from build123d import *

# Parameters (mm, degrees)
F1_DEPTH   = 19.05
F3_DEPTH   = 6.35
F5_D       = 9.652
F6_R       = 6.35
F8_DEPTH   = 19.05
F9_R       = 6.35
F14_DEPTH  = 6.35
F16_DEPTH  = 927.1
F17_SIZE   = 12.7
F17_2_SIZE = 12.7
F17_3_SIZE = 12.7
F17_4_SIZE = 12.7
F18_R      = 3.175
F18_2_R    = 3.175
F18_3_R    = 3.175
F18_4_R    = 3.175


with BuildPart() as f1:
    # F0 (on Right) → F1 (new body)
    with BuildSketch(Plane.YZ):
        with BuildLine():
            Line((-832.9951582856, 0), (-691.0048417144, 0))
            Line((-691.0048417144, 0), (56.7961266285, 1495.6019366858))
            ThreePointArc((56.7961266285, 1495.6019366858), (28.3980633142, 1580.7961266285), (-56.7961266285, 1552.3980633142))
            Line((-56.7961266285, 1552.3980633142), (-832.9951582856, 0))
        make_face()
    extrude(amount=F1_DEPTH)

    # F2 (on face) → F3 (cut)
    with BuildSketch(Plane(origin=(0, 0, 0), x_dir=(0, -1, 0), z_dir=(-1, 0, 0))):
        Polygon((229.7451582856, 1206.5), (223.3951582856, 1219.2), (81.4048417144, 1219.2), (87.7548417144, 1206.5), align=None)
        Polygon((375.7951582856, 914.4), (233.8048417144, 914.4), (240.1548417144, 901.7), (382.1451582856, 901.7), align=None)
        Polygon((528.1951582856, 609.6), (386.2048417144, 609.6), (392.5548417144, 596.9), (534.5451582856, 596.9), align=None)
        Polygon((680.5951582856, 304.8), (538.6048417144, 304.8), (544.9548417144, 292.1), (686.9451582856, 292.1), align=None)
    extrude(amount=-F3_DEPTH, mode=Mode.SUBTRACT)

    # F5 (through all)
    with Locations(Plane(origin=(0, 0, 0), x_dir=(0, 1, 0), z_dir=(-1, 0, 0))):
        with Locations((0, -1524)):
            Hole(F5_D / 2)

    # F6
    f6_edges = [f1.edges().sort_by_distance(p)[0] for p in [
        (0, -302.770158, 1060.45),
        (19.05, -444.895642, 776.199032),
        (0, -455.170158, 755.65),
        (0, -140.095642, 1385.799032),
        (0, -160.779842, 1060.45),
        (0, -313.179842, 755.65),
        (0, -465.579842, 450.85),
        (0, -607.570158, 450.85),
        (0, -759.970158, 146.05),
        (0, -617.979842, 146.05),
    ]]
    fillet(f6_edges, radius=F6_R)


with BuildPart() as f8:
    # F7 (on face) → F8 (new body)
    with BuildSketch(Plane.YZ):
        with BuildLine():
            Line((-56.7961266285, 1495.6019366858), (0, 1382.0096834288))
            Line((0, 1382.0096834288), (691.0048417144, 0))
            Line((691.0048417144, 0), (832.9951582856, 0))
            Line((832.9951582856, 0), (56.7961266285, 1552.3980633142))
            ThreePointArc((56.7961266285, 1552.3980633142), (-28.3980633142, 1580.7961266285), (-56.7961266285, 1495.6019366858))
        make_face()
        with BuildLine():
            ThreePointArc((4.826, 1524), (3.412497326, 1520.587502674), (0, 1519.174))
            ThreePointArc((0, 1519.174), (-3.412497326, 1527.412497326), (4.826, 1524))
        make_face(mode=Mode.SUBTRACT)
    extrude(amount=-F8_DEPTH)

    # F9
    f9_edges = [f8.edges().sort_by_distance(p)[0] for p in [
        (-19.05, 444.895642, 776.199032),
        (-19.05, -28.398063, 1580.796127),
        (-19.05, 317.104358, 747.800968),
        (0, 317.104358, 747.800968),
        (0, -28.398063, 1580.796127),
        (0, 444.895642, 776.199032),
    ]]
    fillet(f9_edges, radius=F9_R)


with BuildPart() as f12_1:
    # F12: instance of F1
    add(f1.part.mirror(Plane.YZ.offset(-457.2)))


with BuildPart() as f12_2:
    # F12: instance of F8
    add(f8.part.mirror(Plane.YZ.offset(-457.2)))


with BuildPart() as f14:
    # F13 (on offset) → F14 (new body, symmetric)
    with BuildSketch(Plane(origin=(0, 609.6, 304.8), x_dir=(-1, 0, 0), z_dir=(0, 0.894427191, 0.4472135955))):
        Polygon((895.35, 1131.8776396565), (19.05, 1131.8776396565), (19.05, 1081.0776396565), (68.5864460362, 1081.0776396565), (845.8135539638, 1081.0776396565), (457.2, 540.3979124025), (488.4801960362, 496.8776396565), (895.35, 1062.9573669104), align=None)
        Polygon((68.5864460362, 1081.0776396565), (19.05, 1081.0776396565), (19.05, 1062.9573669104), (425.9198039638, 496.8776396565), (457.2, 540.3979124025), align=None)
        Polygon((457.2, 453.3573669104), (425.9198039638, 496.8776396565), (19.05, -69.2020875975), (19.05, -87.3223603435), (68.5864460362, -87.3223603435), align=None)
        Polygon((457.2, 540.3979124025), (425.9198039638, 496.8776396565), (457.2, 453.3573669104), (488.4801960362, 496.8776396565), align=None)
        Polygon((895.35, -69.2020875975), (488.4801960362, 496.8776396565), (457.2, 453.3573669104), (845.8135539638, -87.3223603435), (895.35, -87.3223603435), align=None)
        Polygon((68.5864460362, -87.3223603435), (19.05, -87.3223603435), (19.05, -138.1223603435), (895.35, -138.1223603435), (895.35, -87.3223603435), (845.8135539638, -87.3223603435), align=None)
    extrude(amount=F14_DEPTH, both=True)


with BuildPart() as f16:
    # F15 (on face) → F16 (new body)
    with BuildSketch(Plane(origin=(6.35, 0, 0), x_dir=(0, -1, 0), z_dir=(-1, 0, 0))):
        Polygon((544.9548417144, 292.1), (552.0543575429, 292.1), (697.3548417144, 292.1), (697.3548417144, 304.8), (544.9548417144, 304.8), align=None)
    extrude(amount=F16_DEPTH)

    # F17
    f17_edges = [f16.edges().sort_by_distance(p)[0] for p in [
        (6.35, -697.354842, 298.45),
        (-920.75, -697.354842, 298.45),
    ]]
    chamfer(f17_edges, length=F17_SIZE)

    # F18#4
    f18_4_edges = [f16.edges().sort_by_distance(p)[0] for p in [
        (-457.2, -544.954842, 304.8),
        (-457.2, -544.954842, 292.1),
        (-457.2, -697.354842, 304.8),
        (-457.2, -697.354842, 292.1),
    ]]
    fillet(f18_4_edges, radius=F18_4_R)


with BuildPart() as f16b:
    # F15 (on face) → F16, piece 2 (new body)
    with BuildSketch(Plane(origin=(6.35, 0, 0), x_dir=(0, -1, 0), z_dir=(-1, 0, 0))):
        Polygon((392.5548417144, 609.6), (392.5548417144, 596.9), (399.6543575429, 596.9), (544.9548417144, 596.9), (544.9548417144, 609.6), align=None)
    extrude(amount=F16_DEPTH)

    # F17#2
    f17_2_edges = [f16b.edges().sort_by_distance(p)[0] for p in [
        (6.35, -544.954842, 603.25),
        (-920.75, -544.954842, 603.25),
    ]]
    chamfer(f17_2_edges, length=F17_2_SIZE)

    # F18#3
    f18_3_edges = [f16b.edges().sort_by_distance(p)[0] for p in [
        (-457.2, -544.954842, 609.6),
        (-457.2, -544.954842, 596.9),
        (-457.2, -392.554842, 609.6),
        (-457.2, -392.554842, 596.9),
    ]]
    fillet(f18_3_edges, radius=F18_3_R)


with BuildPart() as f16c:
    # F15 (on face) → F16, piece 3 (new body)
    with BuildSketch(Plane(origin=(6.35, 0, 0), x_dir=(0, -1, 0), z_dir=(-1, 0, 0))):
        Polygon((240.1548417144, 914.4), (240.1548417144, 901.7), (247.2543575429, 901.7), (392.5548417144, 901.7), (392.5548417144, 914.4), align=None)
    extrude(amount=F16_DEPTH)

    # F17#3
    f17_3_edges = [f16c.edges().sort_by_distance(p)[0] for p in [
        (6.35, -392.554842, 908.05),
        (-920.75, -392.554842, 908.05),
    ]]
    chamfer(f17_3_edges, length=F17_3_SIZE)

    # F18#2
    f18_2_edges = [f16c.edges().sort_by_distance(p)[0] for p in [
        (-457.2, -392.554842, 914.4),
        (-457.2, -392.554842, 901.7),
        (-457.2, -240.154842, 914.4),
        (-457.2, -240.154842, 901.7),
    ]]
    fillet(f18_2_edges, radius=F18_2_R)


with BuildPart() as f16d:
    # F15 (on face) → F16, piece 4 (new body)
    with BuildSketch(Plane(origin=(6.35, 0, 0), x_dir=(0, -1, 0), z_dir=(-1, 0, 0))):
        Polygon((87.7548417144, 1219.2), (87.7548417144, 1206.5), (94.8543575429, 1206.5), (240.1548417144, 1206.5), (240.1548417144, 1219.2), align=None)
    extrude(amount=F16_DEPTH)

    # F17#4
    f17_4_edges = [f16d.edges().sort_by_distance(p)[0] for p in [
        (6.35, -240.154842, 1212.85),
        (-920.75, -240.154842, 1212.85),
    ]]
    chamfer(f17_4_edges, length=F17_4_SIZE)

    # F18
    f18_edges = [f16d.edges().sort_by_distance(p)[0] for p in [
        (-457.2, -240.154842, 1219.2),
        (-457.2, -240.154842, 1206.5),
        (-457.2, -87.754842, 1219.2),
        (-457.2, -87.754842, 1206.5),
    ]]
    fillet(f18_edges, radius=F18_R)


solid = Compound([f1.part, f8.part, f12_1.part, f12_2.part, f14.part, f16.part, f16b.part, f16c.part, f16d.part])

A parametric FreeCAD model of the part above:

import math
import FreeCAD as App
import Part
import Sketcher
Q = App.Units.Quantity


def edges_at(feature, points):
    """Names of the edges that pass closest to the given points."""
    edges = feature.Shape.Edges
    near = lambda p: min(range(len(edges)), key=lambda i: edges[i].distToShape(Part.Vertex(*p))[0])
    return sorted({f"Edge{near(p) + 1}" for p in points})


def add_polygon(sketch, points):
    """Adds a closed chain of lines whose ends are joined by coincident constraints."""
    first, n = sketch.GeometryCount, len(points)
    for a, b in zip(points, points[1:] + points[:1]):
        sketch.addGeometry(Part.LineSegment(App.Vector(*a, 0), App.Vector(*b, 0)), False)
    for i in range(n):
        sketch.addConstraint(Sketcher.Constraint("Coincident", first + i, 2, first + (i + 1) % n, 1))

doc = App.newDocument("Part")
params = doc.addObject("Spreadsheet::Sheet", "Params")
for row, (alias, value) in enumerate([
    ("sketch1_radius", "2.5 in"),
    ("pad1_length", "0.75 in"),
    ("pocket1_length", "0.25 in"),
    ("sketch3_diameter", "0.38 in"),
    ("hole_diameter", "0.38 in"),
    ("fillet_radius", "0.25 in"),
    ("sketch4_radius", "2.5 in"),
    ("sketch4_radius2", "0.19 in"),
    ("pad2_length", "0.75 in"),
    ("fillet2_radius", "0.25 in"),
    ("sketch5_width", "34.5 in"),
    ("pad3_length", "0.5 in"),
    ("sketch6_width", "6 in"),
    ("sketch6_height", "0.5 in"),
    ("pad4_length", "36.5 in"),
    ("chamfer_size", "0.5 in"),
    ("fillet3_radius", "0.125 in"),
    ("sketch7_width", "6 in"),
    ("sketch7_height", "0.5 in"),
    ("pad5_length", "36.5 in"),
    ("chamfer2_size", "0.5 in"),
    ("fillet4_radius", "0.125 in"),
    ("sketch8_width", "6 in"),
    ("sketch8_height", "0.5 in"),
    ("pad6_length", "36.5 in"),
    ("chamfer3_size", "0.5 in"),
    ("fillet5_radius", "0.125 in"),
    ("sketch9_width", "6 in"),
    ("sketch9_height", "0.5 in"),
    ("pad7_length", "36.5 in"),
    ("chamfer4_size", "0.5 in"),
    ("fillet6_radius", "0.125 in"),
], start=1):
    params.set(f"A{row}", alias)
    params.set(f"B{row}", "=" + value)
    params.setAlias(f"B{row}", alias)

body = doc.addObject("PartDesign::Body", "Body")

# Sketch on YZ plane
sketch1 = body.newObject("Sketcher::SketchObject", "Sketch")
sketch1.AttachmentSupport = (doc.getObject("YZ_Plane"), [""])
sketch1.MapMode = "FlatFace"
sketch1.addGeometry([
    Part.LineSegment(App.Vector(-833, 0, 0), App.Vector(-691, 0, 0)),
    Part.LineSegment(App.Vector(-691, 0, 0), App.Vector(57, 1496, 0)),
    Part.ArcOfCircle(Part.Circle(App.Vector(0, 1524, 0), App.Vector(0, 0, 1), 64), math.radians(-27), math.radians(153)),
    Part.LineSegment(App.Vector(-57, 1552, 0), App.Vector(-833, 0, 0)),
], False)
sketch1.addConstraint([
    Sketcher.Constraint("Coincident", 0, 2, 1, 1),
    Sketcher.Constraint("Tangent", 1, 2, 2, 1),
    Sketcher.Constraint("Tangent", 2, 2, 3, 1),
    Sketcher.Constraint("Coincident", 3, 2, 0, 1),
    Sketcher.Constraint("Horizontal", 0),
    Sketcher.Constraint("PointOnObject", 2, 3, -2),
    Sketcher.Constraint("PointOnObject", 0, 2, -1),
    Sketcher.Constraint("Parallel", 1, 3),
    Sketcher.Constraint("Radius", 2, Q("2.5 in")),
    Sketcher.Constraint("DistanceY", -1, 1, 2, 3, Q("60 in")),
    Sketcher.Constraint("Distance", 1, Q("1672.133799 mm")),
])
sketch1.setExpression("Constraints[8]", "Params.sketch1_radius")
pad1 = body.newObject("PartDesign::Pad", "Pad")
pad1.Profile = sketch1
pad1.setExpression("Length", "Params.pad1_length")

# Sketch on YZ plane
sketch2 = body.newObject("Sketcher::SketchObject", "Sketch001")
sketch2.AttachmentSupport = (doc.getObject("YZ_Plane"), [""])
sketch2.MapMode = "FlatFace"
add_polygon(sketch2, [(-230, 1206), (-223, 1219), (-81, 1219), (-88, 1206)])  # lines 0-3
add_polygon(sketch2, [(-376, 914), (-234, 914), (-240, 902), (-382, 902)])  # lines 4-7
add_polygon(sketch2, [(-528, 610), (-386, 610), (-393, 597), (-535, 597)])  # lines 8-11
add_polygon(sketch2, [(-681, 305), (-539, 305), (-545, 292), (-687, 292)])  # lines 12-15
sketch2.addConstraint([
    Sketcher.Constraint("Horizontal", 1),
    Sketcher.Constraint("Horizontal", 3),
    Sketcher.Constraint("Horizontal", 4),
    Sketcher.Constraint("Horizontal", 6),
    Sketcher.Constraint("Horizontal", 8),
    Sketcher.Constraint("Horizontal", 10),
    Sketcher.Constraint("Horizontal", 12),
    Sketcher.Constraint("Horizontal", 14),
    Sketcher.Constraint("Parallel", 0, 2),
    Sketcher.Constraint("Parallel", 2, 5),
    Sketcher.Constraint("Parallel", 5, 7),
    Sketcher.Constraint("Parallel", 7, 9),
    Sketcher.Constraint("Parallel", 9, 11),
    Sketcher.Constraint("Parallel", 11, 13),
    Sketcher.Constraint("Parallel", 13, 15),
    Sketcher.Constraint("Equal", 3, 4),
    Sketcher.Constraint("Equal", 6, 8),
    Sketcher.Constraint("Equal", 10, 12),
    Sketcher.Constraint("Equal", 2, 5),
    Sketcher.Constraint("Equal", 7, 9),
    Sketcher.Constraint("Equal", 11, 13),
    Sketcher.Constraint("DistanceY", -1, 1, 0, 2, Q("48 in")),
    Sketcher.Constraint("DistanceY", -1, 1, 4, 2, Q("36 in")),
    Sketcher.Constraint("DistanceY", -1, 1, 8, 2, Q("24 in")),
    Sketcher.Constraint("DistanceY", -1, 1, 12, 2, Q("12 in")),
    Sketcher.Constraint("DistanceX", 4, 2, 1, 2, Q("6 in")),
    Sketcher.Constraint("DistanceX", 8, 2, 4, 2, Q("6 in")),
    Sketcher.Constraint("DistanceX", 12, 2, 8, 2, Q("6 in")),
    Sketcher.Constraint("DistanceY", -1, 1, 2, 2, Q("47.5 in")),
    Sketcher.Constraint("DistanceX", 2, 2, 1, 2, Q("0.25 in")),
    Sketcher.Constraint("DistanceX", 1, 1, 1, 2, Q("141.990317 mm")),
    Sketcher.Constraint("DistanceX", 0, 2, -1, 1, Q("223.395158 mm")),
])
pocket1 = body.newObject("PartDesign::Pocket", "Pocket")
pocket1.Profile = sketch2
pocket1.setExpression("Length", "Params.pocket1_length")
pocket1.Reversed = True

# Sketch on YZ plane
sketch3 = body.newObject("Sketcher::SketchObject", "Sketch002")
sketch3.AttachmentSupport = (doc.getObject("YZ_Plane"), [""])
sketch3.MapMode = "FlatFace"
sketch3.addGeometry(Part.Circle(App.Vector(0, 1524, 0), App.Vector(0, 0, 1), 4.8), False)
sketch3.addConstraint([
    Sketcher.Constraint("PointOnObject", 0, 3, -2),
    Sketcher.Constraint("Diameter", 0, Q("0.38 in")),
    Sketcher.Constraint("DistanceY", -1, 1, 0, 3, Q("60 in")),
])
sketch3.setExpression("Constraints[1]", "Params.sketch3_diameter")
doc.recompute()
hole = body.newObject("PartDesign::Hole", "Hole")
hole.Profile = sketch3
hole.ThreadType = "None"
hole.setExpression("Diameter", "Params.hole_diameter")
hole.DepthType = "ThroughAll"
hole.Reversed = True
doc.recompute()

fillet = body.newObject("PartDesign::Fillet", "Fillet")
fillet.Base = (hole, edges_at(hole, [
    (0, -302.77, 1060.45),
    (19.05, -444.896, 776.199),
    (0, -455.17, 755.65),
    (0, -140.096, 1385.799),
    (0, -160.78, 1060.45),
    (0, -313.18, 755.65),
    (0, -465.58, 450.85),
    (0, -607.57, 450.85),
    (0, -759.97, 146.05),
    (0, -617.98, 146.05),
]))
fillet.setExpression("Radius", "Params.fillet_radius")
body2 = doc.addObject("PartDesign::Body", "Body001")

# Sketch on YZ plane
sketch4 = body2.newObject("Sketcher::SketchObject", "Sketch003")
sketch4.AttachmentSupport = (doc.getObject("YZ_Plane001"), [""])
sketch4.MapMode = "FlatFace"
sketch4.addGeometry([
    Part.LineSegment(App.Vector(-56.8, 1495.6, 0), App.Vector(691, 0, 0)),  # 0
    Part.LineSegment(App.Vector(691, 0, 0), App.Vector(833, 0, 0)),  # 1
    Part.LineSegment(App.Vector(833, 0, 0), App.Vector(56.8, 1552.4, 0)),  # 2
    Part.ArcOfCircle(Part.Circle(App.Vector(0, 1524, 0), App.Vector(0, 0, 1), 63.5), math.radians(27), math.radians(207)),  # 3
    Part.ArcOfCircle(Part.Circle(App.Vector(0, 1524, 0), App.Vector(0, 0, 1), 4.8), math.radians(0), math.radians(270)),  # 4
    Part.ArcOfCircle(Part.Circle(App.Vector(0, 1524, 0), App.Vector(0, 0, 1), 4.8), math.radians(-90), math.radians(0)),  # 5
], False)
sketch4.addConstraint([
    Sketcher.Constraint("Coincident", 0, 2, 1, 1),
    Sketcher.Constraint("Coincident", 1, 2, 2, 1),
    Sketcher.Constraint("Tangent", 2, 2, 3, 1),
    Sketcher.Constraint("Tangent", 3, 2, 0, 1),
    Sketcher.Constraint("Tangent", 4, 1, 5, 2),
    Sketcher.Constraint("Coincident", 5, 1, 4, 2),
    Sketcher.Constraint("Horizontal", 1),
    Sketcher.Constraint("Coincident", 4, 3, 3, 3),
    Sketcher.Constraint("PointOnObject", 3, 3, -2),
    Sketcher.Constraint("PointOnObject", 0, 2, -1),
    Sketcher.Constraint("PointOnObject", 5, 1, -2),
    Sketcher.Constraint("Parallel", 0, 2),
    Sketcher.Constraint("Horizontal", 5, 3, 4, 1),
    Sketcher.Constraint("Radius", 3, Q("2.5 in")),
    Sketcher.Constraint("Radius", 4, Q("0.19 in")),
    Sketcher.Constraint("DistanceY", -1, 1, 3, 3, Q("60 in")),
    Sketcher.Constraint("Distance", 0, Q("1672.133799 mm")),
])
sketch4.setExpression("Constraints[13]", "Params.sketch4_radius")
sketch4.setExpression("Constraints[14]", "Params.sketch4_radius2")
pad2 = body2.newObject("PartDesign::Pad", "Pad001")
pad2.Profile = sketch4
pad2.setExpression("Length", "Params.pad2_length")
pad2.Reversed = True
doc.recompute()

fillet2 = body2.newObject("PartDesign::Fillet", "Fillet001")
fillet2.Base = (pad2, edges_at(pad2, [
    (-19.05, 444.896, 776.199),
    (-19.05, -28.398, 1580.796),
    (-19.05, 317.104, 747.801),
    (0, 317.104, 747.801),
    (0, -28.398, 1580.796),
    (0, 444.896, 776.199),
]))
fillet2.setExpression("Radius", "Params.fillet2_radius")
body3 = doc.addObject("PartDesign::Body", "Body002")
doc.recompute()

mirroring = doc.addObject("Part::Mirroring", "Mirroring")
mirroring.Source = body
mirroring.Base = App.Vector(-457.2, 0, 0)
mirroring.Normal = App.Vector(1, 0, 0)
body3.BaseFeature = mirroring
doc.recompute()
body4 = doc.addObject("PartDesign::Body", "Body003")
doc.recompute()

mirroring2 = doc.addObject("Part::Mirroring", "Mirroring001")
mirroring2.Source = body2
mirroring2.Base = App.Vector(-457.2, 0, 0)
mirroring2.Normal = App.Vector(1, 0, 0)
body4.BaseFeature = mirroring2
doc.recompute()
body5 = doc.addObject("PartDesign::Body", "Body004")

# Sketch on an angled plane
sketch5 = body5.newObject("Sketcher::SketchObject", "Sketch004")
sketch5.Placement = App.Placement(App.Vector(0, 609.6, 304.8), App.Rotation(App.Vector(-1, 0, 0), App.Vector(0, -0.447213595, 0.894427191), App.Vector(0, 0.894427191, 0.447213595), "ZXY"))
add_polygon(sketch5, [(19, 1063), (426, 497), (19, -69), (19, -138), (895, -138), (895, -69), (488, 497), (895, 1063), (895, 1132), (19, 1132)])  # lines 0-9
add_polygon(sketch5, [(69, -87), (457, 453), (846, -87)])  # lines 10-12
add_polygon(sketch5, [(846, 1081), (457, 540), (69, 1081)])  # lines 13-15
sketch5.addConstraint([
    Sketcher.Constraint("Vertical", 2),
    Sketcher.Constraint("Horizontal", 3),
    Sketcher.Constraint("Vertical", 4),
    Sketcher.Constraint("Vertical", 7),
    Sketcher.Constraint("Horizontal", 8),
    Sketcher.Constraint("Vertical", 9),
    Sketcher.Constraint("Horizontal", 12),
    Sketcher.Constraint("Horizontal", 15),
    Sketcher.Constraint("Parallel", 0, 5),
    Sketcher.Constraint("Parallel", 1, 6),
    Sketcher.Constraint("Parallel", 6, 10),
    Sketcher.Constraint("Parallel", 5, 11),
    Sketcher.Constraint("Parallel", 10, 13),
    Sketcher.Constraint("Parallel", 11, 14),
    Sketcher.Constraint("Horizontal", 1, 2, 4, 2),
    Sketcher.Constraint("Horizontal", 0, 2, 5, 2),
    Sketcher.Constraint("Horizontal", 6, 2, 9, 2),
    Sketcher.Constraint("Vertical", 4, 2, 6, 2),
    Sketcher.Constraint("Vertical", 2, 2, 8, 2),
    Sketcher.Constraint("Vertical", 10, 2, 13, 2),
    Sketcher.Constraint("Vertical", 12, 2, 14, 2),
    Sketcher.Constraint("Equal", 4, 7),
    Sketcher.Constraint("DistanceX", 3, 1, 3, 2, Q("34.5 in")),
    Sketcher.Constraint("DistanceX", -1, 1, 10, 2, Q("18 in")),
    Sketcher.Constraint("DistanceY", 2, 2, 0, 2, Q("25 in")),
    Sketcher.Constraint("DistanceY", 3, 2, 11, 2, Q("2 in")),
    Sketcher.Constraint("DistanceY", 14, 2, 8, 2, Q("2 in")),
    Sketcher.Constraint("DistanceX", -1, 1, 1, 2, Q("0.75 in")),
    Sketcher.Constraint("DistanceX", 0, 2, 11, 2, Q("16.53125 in")),
    Sketcher.Constraint("Distance", 10, Q("665.849128 mm")),
    Sketcher.Constraint("DistanceX", 12, 2, 12, 1, Q("777.227108 mm")),
    Sketcher.Constraint("DistanceY", -1, 1, 0, 2, Q("496.877639 mm")),
])
sketch5.setExpression("Constraints[38]", "Params.sketch5_width")
pad3 = body5.newObject("PartDesign::Pad", "Pad002")
pad3.Profile = sketch5
pad3.setExpression("Length", "Params.pad3_length")
pad3.Midplane = True
body6 = doc.addObject("PartDesign::Body", "Body005")

# Sketch on YZ plane
sketch6 = body6.newObject("Sketcher::SketchObject", "Sketch005")
sketch6.AttachmentSupport = (doc.getObject("YZ_Plane005"), [""])
sketch6.MapMode = "FlatFace"
sketch6.AttachmentOffset = App.Placement(App.Vector(0, 0, 0.25 * 25.4), App.Rotation())
add_polygon(sketch6, [(-545, 292), (-697, 292), (-697, 305), (-545, 305)])  # lines 0-3
sketch6.addConstraint([
    Sketcher.Constraint("Horizontal", 0),
    Sketcher.Constraint("Vertical", 1),
    Sketcher.Constraint("Horizontal", 2),
    Sketcher.Constraint("Vertical", 3),
    Sketcher.Constraint("DistanceX", 0, 2, 0, 1, Q("6 in")),
    Sketcher.Constraint("DistanceY", 1, 1, 1, 2, Q("0.5 in")),
    Sketcher.Constraint("DistanceY", -1, 1, 1, 2, Q("12 in")),
    Sketcher.Constraint("DistanceX", 0, 2, -1, 1, Q("697.354842 mm")),
])
sketch6.setExpression("Constraints[8]", "Params.sketch6_width")
sketch6.setExpression("Constraints[9]", "Params.sketch6_height")
pad4 = body6.newObject("PartDesign::Pad", "Pad003")
pad4.Profile = sketch6
pad4.setExpression("Length", "Params.pad4_length")
pad4.Reversed = True
doc.recompute()

chamfer = body6.newObject("PartDesign::Chamfer", "Chamfer")
chamfer.Base = (pad4, edges_at(pad4, [(6.35, -697.355, 298.45), (-920.75, -697.355, 298.45)]))
chamfer.setExpression("Size", "Params.chamfer_size")
doc.recompute()

fillet3 = body6.newObject("PartDesign::Fillet", "Fillet002")
fillet3.Base = (chamfer, edges_at(chamfer, [
    (-457.2, -544.955, 304.8),
    (-457.2, -544.955, 292.1),
    (-457.2, -697.355, 304.8),
    (-457.2, -697.355, 292.1),
]))
fillet3.setExpression("Radius", "Params.fillet3_radius")
body7 = doc.addObject("PartDesign::Body", "Body006")

# Sketch on YZ plane
sketch7 = body7.newObject("Sketcher::SketchObject", "Sketch006")
sketch7.AttachmentSupport = (doc.getObject("YZ_Plane006"), [""])
sketch7.MapMode = "FlatFace"
sketch7.AttachmentOffset = App.Placement(App.Vector(0, 0, 0.25 * 25.4), App.Rotation())
add_polygon(sketch7, [(-393, 610), (-393, 597), (-545, 597), (-545, 610)])  # lines 0-3
sketch7.addConstraint([
    Sketcher.Constraint("Vertical", 0),
    Sketcher.Constraint("Horizontal", 1),
    Sketcher.Constraint("Vertical", 2),
    Sketcher.Constraint("Horizontal", 3),
    Sketcher.Constraint("DistanceX", 1, 2, 1, 1, Q("6 in")),
    Sketcher.Constraint("DistanceY", 0, 2, 0, 1, Q("0.5 in")),
    Sketcher.Constraint("DistanceY", -1, 1, 2, 2, Q("24 in")),
    Sketcher.Constraint("DistanceX", 0, 2, -1, 1, Q("392.554842 mm")),
])
sketch7.setExpression("Constraints[8]", "Params.sketch7_width")
sketch7.setExpression("Constraints[9]", "Params.sketch7_height")
pad5 = body7.newObject("PartDesign::Pad", "Pad004")
pad5.Profile = sketch7
pad5.setExpression("Length", "Params.pad5_length")
pad5.Reversed = True
doc.recompute()

chamfer2 = body7.newObject("PartDesign::Chamfer", "Chamfer001")
chamfer2.Base = (pad5, edges_at(pad5, [(6.35, -544.955, 603.25), (-920.75, -544.955, 603.25)]))
chamfer2.setExpression("Size", "Params.chamfer2_size")
doc.recompute()

fillet4 = body7.newObject("PartDesign::Fillet", "Fillet003")
fillet4.Base = (chamfer2, edges_at(chamfer2, [
    (-457.2, -544.955, 609.6),
    (-457.2, -544.955, 596.9),
    (-457.2, -392.555, 609.6),
    (-457.2, -392.555, 596.9),
]))
fillet4.setExpression("Radius", "Params.fillet4_radius")
body8 = doc.addObject("PartDesign::Body", "Body007")

# Sketch on YZ plane
sketch8 = body8.newObject("Sketcher::SketchObject", "Sketch007")
sketch8.AttachmentSupport = (doc.getObject("YZ_Plane007"), [""])
sketch8.MapMode = "FlatFace"
sketch8.AttachmentOffset = App.Placement(App.Vector(0, 0, 0.25 * 25.4), App.Rotation())
add_polygon(sketch8, [(-240, 914), (-240, 902), (-393, 902), (-393, 914)])  # lines 0-3
sketch8.addConstraint([
    Sketcher.Constraint("Vertical", 0),
    Sketcher.Constraint("Horizontal", 1),
    Sketcher.Constraint("Vertical", 2),
    Sketcher.Constraint("Horizontal", 3),
    Sketcher.Constraint("DistanceX", 1, 2, 1, 1, Q("6 in")),
    Sketcher.Constraint("DistanceY", 0, 2, 0, 1, Q("0.5 in")),
    Sketcher.Constraint("DistanceY", -1, 1, 2, 2, Q("36 in")),
    Sketcher.Constraint("DistanceX", 0, 2, -1, 1, Q("240.154842 mm")),
])
sketch8.setExpression("Constraints[8]", "Params.sketch8_width")
sketch8.setExpression("Constraints[9]", "Params.sketch8_height")
pad6 = body8.newObject("PartDesign::Pad", "Pad005")
pad6.Profile = sketch8
pad6.setExpression("Length", "Params.pad6_length")
pad6.Reversed = True
doc.recompute()

chamfer3 = body8.newObject("PartDesign::Chamfer", "Chamfer002")
chamfer3.Base = (pad6, edges_at(pad6, [(6.35, -392.555, 908.05), (-920.75, -392.555, 908.05)]))
chamfer3.setExpression("Size", "Params.chamfer3_size")
doc.recompute()

fillet5 = body8.newObject("PartDesign::Fillet", "Fillet004")
fillet5.Base = (chamfer3, edges_at(chamfer3, [
    (-457.2, -392.555, 914.4),
    (-457.2, -392.555, 901.7),
    (-457.2, -240.155, 914.4),
    (-457.2, -240.155, 901.7),
]))
fillet5.setExpression("Radius", "Params.fillet5_radius")
body9 = doc.addObject("PartDesign::Body", "Body008")

# Sketch on YZ plane
sketch9 = body9.newObject("Sketcher::SketchObject", "Sketch008")
sketch9.AttachmentSupport = (doc.getObject("YZ_Plane008"), [""])
sketch9.MapMode = "FlatFace"
sketch9.AttachmentOffset = App.Placement(App.Vector(0, 0, 0.25 * 25.4), App.Rotation())
add_polygon(sketch9, [(-88, 1219), (-88, 1206), (-240, 1206), (-240, 1219)])  # lines 0-3
sketch9.addConstraint([
    Sketcher.Constraint("Vertical", 0),
    Sketcher.Constraint("Horizontal", 1),
    Sketcher.Constraint("Vertical", 2),
    Sketcher.Constraint("Horizontal", 3),
    Sketcher.Constraint("DistanceX", 1, 2, 1, 1, Q("6 in")),
    Sketcher.Constraint("DistanceY", 0, 2, 0, 1, Q("0.5 in")),
    Sketcher.Constraint("DistanceY", -1, 1, 2, 2, Q("48 in")),
    Sketcher.Constraint("DistanceX", 0, 2, -1, 1, Q("87.754842 mm")),
])
sketch9.setExpression("Constraints[8]", "Params.sketch9_width")
sketch9.setExpression("Constraints[9]", "Params.sketch9_height")
pad7 = body9.newObject("PartDesign::Pad", "Pad006")
pad7.Profile = sketch9
pad7.setExpression("Length", "Params.pad7_length")
pad7.Reversed = True
doc.recompute()

chamfer4 = body9.newObject("PartDesign::Chamfer", "Chamfer003")
chamfer4.Base = (pad7, edges_at(pad7, [(6.35, -240.155, 1212.85), (-920.75, -240.155, 1212.85)]))
chamfer4.setExpression("Size", "Params.chamfer4_size")
doc.recompute()

fillet6 = body9.newObject("PartDesign::Fillet", "Fillet005")
fillet6.Base = (chamfer4, edges_at(chamfer4, [
    (-457.2, -240.155, 1219.2),
    (-457.2, -240.155, 1206.5),
    (-457.2, -87.755, 1219.2),
    (-457.2, -87.755, 1206.5),
]))
fillet6.setExpression("Radius", "Params.fillet6_radius")
mirroring.Visibility = False
mirroring2.Visibility = False

doc.recompute()
